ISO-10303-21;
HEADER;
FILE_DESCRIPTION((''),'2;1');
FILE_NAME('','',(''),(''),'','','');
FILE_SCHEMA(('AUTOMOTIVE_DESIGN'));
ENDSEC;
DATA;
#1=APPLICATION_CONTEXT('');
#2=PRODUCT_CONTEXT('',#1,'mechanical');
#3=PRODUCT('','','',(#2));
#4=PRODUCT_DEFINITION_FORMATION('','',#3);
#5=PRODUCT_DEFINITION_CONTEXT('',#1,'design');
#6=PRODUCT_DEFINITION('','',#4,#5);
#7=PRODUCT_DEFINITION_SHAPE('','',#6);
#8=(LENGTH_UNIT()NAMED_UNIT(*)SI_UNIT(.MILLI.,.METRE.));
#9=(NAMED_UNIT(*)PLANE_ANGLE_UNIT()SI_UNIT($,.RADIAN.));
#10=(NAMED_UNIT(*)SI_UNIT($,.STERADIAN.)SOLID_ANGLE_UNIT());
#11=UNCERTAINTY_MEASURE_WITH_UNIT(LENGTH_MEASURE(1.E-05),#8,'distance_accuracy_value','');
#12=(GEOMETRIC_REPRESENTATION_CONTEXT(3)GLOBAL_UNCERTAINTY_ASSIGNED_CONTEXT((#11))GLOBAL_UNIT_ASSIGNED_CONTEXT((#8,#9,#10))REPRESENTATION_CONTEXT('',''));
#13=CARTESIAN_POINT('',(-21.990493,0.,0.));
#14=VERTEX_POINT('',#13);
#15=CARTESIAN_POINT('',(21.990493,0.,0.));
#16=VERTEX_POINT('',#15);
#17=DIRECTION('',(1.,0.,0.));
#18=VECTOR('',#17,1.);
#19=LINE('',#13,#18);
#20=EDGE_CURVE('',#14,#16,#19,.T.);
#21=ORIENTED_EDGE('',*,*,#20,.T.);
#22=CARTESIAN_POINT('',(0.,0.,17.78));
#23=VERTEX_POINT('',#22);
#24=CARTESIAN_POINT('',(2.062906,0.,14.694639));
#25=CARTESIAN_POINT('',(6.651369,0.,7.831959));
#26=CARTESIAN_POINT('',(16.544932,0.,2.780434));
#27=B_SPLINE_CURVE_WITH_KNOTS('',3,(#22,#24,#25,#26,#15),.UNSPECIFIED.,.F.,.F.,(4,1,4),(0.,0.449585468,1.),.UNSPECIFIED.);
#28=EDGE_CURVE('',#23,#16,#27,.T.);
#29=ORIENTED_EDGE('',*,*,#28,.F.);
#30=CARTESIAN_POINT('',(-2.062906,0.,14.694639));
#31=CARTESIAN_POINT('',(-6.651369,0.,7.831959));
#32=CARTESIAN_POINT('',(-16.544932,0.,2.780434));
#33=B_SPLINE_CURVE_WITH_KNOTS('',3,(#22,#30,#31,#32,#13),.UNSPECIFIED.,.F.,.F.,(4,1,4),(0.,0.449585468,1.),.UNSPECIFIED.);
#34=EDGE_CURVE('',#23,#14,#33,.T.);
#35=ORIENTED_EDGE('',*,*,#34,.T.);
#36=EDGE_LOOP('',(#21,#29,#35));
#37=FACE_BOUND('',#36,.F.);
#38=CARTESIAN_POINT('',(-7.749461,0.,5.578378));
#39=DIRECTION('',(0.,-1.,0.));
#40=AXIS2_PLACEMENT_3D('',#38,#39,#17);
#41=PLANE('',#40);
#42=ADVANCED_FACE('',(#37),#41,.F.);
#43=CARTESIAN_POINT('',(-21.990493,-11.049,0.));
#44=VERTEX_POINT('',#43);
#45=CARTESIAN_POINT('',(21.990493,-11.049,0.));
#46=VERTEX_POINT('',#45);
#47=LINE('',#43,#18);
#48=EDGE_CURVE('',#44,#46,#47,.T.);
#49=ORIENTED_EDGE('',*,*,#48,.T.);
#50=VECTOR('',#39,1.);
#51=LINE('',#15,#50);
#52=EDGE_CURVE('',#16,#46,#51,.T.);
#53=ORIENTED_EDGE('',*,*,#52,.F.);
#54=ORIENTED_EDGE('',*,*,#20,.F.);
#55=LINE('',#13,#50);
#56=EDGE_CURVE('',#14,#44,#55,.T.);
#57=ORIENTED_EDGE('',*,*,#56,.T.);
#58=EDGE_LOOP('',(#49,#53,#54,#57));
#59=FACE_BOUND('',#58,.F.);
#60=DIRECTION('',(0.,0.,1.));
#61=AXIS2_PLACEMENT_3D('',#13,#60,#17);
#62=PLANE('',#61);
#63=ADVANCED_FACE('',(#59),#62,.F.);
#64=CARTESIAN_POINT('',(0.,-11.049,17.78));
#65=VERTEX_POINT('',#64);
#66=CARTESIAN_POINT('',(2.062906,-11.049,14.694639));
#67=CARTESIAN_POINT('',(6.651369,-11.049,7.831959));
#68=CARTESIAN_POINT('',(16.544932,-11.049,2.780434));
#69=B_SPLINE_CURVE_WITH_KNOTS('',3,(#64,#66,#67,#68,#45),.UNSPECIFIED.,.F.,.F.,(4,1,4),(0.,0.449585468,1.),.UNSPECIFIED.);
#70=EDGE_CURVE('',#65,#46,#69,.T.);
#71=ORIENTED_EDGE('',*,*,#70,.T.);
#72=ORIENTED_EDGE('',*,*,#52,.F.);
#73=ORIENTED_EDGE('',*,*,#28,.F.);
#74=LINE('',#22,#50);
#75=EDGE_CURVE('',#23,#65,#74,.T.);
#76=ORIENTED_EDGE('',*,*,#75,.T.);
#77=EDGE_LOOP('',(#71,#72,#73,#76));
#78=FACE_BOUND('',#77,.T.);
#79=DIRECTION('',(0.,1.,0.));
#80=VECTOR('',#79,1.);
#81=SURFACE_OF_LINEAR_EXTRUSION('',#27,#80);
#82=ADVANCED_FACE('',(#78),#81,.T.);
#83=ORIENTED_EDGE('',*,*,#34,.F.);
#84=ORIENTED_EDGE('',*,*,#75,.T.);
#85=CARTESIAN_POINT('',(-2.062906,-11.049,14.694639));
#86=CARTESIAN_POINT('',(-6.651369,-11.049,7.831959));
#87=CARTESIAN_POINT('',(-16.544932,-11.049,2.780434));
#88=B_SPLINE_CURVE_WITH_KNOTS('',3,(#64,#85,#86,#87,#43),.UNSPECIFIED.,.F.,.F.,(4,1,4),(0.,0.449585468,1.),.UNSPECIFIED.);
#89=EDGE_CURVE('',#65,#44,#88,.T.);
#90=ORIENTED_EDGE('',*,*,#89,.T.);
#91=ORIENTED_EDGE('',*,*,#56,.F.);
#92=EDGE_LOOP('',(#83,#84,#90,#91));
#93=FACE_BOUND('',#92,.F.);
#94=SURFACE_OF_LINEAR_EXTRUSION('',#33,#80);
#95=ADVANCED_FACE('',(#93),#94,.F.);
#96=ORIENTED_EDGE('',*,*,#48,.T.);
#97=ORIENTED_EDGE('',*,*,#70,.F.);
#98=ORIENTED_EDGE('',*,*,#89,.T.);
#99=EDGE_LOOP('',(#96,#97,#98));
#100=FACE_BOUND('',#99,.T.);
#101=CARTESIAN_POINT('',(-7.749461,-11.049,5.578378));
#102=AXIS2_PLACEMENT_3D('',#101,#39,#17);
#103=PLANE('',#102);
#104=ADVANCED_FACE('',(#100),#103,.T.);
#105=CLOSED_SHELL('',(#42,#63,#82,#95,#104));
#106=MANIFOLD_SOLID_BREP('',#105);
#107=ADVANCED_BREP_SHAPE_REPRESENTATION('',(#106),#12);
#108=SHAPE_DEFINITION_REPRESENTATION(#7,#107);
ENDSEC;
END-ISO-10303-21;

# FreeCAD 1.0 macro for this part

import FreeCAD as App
import Part
import Sketcher
from FreeCAD import Vector
Q = App.Units.Quantity

doc = App.newDocument("Part")
body = doc.addObject("PartDesign::Body", "Body")

# Sketch on XZ plane
sketch1 = body.newObject("Sketcher::SketchObject", "Sketch")
sketch1.AttachmentSupport = (doc.getObject("XZ_Plane"), [""])
sketch1.MapMode = "FlatFace"
sketch1.addGeometry([
    Part.LineSegment(Vector(-21.990493, 0, 0), Vector(21.990493, 0, 0)),
    Part.BSplineCurve([Vector(0, 17.78, 0), Vector(2.062906, 14.694639, 0), Vector(6.651369, 7.831959, 0), Vector(16.544932, 2.780434, 0), Vector(21.990493, 0, 0)], [4, 1, 4], [0, 0.449585468, 1], False, 3, [1, 1, 1, 1, 1], False),
    Part.BSplineCurve([Vector(0, 17.78, 0), Vector(-2.062906, 14.694639, 0), Vector(-6.651369, 7.831959, 0), Vector(-16.544932, 2.780434, 0), Vector(-21.990493, 0, 0)], [4, 1, 4], [0, 0.449585468, 1], False, 3, [1, 1, 1, 1, 1], False),
], False)
sketch1.addConstraint([
    Sketcher.Constraint("Block", 1),
    Sketcher.Constraint("Block", 2),
    Sketcher.Constraint("Coincident", 0, 2, 1, 2),
    Sketcher.Constraint("Coincident", 2, 2, 0, 1),
])
pad1 = body.newObject("PartDesign::Pad", "Pad")
pad1.Profile = sketch1
pad1.Length = Q("0.435 in")

doc.recompute()
